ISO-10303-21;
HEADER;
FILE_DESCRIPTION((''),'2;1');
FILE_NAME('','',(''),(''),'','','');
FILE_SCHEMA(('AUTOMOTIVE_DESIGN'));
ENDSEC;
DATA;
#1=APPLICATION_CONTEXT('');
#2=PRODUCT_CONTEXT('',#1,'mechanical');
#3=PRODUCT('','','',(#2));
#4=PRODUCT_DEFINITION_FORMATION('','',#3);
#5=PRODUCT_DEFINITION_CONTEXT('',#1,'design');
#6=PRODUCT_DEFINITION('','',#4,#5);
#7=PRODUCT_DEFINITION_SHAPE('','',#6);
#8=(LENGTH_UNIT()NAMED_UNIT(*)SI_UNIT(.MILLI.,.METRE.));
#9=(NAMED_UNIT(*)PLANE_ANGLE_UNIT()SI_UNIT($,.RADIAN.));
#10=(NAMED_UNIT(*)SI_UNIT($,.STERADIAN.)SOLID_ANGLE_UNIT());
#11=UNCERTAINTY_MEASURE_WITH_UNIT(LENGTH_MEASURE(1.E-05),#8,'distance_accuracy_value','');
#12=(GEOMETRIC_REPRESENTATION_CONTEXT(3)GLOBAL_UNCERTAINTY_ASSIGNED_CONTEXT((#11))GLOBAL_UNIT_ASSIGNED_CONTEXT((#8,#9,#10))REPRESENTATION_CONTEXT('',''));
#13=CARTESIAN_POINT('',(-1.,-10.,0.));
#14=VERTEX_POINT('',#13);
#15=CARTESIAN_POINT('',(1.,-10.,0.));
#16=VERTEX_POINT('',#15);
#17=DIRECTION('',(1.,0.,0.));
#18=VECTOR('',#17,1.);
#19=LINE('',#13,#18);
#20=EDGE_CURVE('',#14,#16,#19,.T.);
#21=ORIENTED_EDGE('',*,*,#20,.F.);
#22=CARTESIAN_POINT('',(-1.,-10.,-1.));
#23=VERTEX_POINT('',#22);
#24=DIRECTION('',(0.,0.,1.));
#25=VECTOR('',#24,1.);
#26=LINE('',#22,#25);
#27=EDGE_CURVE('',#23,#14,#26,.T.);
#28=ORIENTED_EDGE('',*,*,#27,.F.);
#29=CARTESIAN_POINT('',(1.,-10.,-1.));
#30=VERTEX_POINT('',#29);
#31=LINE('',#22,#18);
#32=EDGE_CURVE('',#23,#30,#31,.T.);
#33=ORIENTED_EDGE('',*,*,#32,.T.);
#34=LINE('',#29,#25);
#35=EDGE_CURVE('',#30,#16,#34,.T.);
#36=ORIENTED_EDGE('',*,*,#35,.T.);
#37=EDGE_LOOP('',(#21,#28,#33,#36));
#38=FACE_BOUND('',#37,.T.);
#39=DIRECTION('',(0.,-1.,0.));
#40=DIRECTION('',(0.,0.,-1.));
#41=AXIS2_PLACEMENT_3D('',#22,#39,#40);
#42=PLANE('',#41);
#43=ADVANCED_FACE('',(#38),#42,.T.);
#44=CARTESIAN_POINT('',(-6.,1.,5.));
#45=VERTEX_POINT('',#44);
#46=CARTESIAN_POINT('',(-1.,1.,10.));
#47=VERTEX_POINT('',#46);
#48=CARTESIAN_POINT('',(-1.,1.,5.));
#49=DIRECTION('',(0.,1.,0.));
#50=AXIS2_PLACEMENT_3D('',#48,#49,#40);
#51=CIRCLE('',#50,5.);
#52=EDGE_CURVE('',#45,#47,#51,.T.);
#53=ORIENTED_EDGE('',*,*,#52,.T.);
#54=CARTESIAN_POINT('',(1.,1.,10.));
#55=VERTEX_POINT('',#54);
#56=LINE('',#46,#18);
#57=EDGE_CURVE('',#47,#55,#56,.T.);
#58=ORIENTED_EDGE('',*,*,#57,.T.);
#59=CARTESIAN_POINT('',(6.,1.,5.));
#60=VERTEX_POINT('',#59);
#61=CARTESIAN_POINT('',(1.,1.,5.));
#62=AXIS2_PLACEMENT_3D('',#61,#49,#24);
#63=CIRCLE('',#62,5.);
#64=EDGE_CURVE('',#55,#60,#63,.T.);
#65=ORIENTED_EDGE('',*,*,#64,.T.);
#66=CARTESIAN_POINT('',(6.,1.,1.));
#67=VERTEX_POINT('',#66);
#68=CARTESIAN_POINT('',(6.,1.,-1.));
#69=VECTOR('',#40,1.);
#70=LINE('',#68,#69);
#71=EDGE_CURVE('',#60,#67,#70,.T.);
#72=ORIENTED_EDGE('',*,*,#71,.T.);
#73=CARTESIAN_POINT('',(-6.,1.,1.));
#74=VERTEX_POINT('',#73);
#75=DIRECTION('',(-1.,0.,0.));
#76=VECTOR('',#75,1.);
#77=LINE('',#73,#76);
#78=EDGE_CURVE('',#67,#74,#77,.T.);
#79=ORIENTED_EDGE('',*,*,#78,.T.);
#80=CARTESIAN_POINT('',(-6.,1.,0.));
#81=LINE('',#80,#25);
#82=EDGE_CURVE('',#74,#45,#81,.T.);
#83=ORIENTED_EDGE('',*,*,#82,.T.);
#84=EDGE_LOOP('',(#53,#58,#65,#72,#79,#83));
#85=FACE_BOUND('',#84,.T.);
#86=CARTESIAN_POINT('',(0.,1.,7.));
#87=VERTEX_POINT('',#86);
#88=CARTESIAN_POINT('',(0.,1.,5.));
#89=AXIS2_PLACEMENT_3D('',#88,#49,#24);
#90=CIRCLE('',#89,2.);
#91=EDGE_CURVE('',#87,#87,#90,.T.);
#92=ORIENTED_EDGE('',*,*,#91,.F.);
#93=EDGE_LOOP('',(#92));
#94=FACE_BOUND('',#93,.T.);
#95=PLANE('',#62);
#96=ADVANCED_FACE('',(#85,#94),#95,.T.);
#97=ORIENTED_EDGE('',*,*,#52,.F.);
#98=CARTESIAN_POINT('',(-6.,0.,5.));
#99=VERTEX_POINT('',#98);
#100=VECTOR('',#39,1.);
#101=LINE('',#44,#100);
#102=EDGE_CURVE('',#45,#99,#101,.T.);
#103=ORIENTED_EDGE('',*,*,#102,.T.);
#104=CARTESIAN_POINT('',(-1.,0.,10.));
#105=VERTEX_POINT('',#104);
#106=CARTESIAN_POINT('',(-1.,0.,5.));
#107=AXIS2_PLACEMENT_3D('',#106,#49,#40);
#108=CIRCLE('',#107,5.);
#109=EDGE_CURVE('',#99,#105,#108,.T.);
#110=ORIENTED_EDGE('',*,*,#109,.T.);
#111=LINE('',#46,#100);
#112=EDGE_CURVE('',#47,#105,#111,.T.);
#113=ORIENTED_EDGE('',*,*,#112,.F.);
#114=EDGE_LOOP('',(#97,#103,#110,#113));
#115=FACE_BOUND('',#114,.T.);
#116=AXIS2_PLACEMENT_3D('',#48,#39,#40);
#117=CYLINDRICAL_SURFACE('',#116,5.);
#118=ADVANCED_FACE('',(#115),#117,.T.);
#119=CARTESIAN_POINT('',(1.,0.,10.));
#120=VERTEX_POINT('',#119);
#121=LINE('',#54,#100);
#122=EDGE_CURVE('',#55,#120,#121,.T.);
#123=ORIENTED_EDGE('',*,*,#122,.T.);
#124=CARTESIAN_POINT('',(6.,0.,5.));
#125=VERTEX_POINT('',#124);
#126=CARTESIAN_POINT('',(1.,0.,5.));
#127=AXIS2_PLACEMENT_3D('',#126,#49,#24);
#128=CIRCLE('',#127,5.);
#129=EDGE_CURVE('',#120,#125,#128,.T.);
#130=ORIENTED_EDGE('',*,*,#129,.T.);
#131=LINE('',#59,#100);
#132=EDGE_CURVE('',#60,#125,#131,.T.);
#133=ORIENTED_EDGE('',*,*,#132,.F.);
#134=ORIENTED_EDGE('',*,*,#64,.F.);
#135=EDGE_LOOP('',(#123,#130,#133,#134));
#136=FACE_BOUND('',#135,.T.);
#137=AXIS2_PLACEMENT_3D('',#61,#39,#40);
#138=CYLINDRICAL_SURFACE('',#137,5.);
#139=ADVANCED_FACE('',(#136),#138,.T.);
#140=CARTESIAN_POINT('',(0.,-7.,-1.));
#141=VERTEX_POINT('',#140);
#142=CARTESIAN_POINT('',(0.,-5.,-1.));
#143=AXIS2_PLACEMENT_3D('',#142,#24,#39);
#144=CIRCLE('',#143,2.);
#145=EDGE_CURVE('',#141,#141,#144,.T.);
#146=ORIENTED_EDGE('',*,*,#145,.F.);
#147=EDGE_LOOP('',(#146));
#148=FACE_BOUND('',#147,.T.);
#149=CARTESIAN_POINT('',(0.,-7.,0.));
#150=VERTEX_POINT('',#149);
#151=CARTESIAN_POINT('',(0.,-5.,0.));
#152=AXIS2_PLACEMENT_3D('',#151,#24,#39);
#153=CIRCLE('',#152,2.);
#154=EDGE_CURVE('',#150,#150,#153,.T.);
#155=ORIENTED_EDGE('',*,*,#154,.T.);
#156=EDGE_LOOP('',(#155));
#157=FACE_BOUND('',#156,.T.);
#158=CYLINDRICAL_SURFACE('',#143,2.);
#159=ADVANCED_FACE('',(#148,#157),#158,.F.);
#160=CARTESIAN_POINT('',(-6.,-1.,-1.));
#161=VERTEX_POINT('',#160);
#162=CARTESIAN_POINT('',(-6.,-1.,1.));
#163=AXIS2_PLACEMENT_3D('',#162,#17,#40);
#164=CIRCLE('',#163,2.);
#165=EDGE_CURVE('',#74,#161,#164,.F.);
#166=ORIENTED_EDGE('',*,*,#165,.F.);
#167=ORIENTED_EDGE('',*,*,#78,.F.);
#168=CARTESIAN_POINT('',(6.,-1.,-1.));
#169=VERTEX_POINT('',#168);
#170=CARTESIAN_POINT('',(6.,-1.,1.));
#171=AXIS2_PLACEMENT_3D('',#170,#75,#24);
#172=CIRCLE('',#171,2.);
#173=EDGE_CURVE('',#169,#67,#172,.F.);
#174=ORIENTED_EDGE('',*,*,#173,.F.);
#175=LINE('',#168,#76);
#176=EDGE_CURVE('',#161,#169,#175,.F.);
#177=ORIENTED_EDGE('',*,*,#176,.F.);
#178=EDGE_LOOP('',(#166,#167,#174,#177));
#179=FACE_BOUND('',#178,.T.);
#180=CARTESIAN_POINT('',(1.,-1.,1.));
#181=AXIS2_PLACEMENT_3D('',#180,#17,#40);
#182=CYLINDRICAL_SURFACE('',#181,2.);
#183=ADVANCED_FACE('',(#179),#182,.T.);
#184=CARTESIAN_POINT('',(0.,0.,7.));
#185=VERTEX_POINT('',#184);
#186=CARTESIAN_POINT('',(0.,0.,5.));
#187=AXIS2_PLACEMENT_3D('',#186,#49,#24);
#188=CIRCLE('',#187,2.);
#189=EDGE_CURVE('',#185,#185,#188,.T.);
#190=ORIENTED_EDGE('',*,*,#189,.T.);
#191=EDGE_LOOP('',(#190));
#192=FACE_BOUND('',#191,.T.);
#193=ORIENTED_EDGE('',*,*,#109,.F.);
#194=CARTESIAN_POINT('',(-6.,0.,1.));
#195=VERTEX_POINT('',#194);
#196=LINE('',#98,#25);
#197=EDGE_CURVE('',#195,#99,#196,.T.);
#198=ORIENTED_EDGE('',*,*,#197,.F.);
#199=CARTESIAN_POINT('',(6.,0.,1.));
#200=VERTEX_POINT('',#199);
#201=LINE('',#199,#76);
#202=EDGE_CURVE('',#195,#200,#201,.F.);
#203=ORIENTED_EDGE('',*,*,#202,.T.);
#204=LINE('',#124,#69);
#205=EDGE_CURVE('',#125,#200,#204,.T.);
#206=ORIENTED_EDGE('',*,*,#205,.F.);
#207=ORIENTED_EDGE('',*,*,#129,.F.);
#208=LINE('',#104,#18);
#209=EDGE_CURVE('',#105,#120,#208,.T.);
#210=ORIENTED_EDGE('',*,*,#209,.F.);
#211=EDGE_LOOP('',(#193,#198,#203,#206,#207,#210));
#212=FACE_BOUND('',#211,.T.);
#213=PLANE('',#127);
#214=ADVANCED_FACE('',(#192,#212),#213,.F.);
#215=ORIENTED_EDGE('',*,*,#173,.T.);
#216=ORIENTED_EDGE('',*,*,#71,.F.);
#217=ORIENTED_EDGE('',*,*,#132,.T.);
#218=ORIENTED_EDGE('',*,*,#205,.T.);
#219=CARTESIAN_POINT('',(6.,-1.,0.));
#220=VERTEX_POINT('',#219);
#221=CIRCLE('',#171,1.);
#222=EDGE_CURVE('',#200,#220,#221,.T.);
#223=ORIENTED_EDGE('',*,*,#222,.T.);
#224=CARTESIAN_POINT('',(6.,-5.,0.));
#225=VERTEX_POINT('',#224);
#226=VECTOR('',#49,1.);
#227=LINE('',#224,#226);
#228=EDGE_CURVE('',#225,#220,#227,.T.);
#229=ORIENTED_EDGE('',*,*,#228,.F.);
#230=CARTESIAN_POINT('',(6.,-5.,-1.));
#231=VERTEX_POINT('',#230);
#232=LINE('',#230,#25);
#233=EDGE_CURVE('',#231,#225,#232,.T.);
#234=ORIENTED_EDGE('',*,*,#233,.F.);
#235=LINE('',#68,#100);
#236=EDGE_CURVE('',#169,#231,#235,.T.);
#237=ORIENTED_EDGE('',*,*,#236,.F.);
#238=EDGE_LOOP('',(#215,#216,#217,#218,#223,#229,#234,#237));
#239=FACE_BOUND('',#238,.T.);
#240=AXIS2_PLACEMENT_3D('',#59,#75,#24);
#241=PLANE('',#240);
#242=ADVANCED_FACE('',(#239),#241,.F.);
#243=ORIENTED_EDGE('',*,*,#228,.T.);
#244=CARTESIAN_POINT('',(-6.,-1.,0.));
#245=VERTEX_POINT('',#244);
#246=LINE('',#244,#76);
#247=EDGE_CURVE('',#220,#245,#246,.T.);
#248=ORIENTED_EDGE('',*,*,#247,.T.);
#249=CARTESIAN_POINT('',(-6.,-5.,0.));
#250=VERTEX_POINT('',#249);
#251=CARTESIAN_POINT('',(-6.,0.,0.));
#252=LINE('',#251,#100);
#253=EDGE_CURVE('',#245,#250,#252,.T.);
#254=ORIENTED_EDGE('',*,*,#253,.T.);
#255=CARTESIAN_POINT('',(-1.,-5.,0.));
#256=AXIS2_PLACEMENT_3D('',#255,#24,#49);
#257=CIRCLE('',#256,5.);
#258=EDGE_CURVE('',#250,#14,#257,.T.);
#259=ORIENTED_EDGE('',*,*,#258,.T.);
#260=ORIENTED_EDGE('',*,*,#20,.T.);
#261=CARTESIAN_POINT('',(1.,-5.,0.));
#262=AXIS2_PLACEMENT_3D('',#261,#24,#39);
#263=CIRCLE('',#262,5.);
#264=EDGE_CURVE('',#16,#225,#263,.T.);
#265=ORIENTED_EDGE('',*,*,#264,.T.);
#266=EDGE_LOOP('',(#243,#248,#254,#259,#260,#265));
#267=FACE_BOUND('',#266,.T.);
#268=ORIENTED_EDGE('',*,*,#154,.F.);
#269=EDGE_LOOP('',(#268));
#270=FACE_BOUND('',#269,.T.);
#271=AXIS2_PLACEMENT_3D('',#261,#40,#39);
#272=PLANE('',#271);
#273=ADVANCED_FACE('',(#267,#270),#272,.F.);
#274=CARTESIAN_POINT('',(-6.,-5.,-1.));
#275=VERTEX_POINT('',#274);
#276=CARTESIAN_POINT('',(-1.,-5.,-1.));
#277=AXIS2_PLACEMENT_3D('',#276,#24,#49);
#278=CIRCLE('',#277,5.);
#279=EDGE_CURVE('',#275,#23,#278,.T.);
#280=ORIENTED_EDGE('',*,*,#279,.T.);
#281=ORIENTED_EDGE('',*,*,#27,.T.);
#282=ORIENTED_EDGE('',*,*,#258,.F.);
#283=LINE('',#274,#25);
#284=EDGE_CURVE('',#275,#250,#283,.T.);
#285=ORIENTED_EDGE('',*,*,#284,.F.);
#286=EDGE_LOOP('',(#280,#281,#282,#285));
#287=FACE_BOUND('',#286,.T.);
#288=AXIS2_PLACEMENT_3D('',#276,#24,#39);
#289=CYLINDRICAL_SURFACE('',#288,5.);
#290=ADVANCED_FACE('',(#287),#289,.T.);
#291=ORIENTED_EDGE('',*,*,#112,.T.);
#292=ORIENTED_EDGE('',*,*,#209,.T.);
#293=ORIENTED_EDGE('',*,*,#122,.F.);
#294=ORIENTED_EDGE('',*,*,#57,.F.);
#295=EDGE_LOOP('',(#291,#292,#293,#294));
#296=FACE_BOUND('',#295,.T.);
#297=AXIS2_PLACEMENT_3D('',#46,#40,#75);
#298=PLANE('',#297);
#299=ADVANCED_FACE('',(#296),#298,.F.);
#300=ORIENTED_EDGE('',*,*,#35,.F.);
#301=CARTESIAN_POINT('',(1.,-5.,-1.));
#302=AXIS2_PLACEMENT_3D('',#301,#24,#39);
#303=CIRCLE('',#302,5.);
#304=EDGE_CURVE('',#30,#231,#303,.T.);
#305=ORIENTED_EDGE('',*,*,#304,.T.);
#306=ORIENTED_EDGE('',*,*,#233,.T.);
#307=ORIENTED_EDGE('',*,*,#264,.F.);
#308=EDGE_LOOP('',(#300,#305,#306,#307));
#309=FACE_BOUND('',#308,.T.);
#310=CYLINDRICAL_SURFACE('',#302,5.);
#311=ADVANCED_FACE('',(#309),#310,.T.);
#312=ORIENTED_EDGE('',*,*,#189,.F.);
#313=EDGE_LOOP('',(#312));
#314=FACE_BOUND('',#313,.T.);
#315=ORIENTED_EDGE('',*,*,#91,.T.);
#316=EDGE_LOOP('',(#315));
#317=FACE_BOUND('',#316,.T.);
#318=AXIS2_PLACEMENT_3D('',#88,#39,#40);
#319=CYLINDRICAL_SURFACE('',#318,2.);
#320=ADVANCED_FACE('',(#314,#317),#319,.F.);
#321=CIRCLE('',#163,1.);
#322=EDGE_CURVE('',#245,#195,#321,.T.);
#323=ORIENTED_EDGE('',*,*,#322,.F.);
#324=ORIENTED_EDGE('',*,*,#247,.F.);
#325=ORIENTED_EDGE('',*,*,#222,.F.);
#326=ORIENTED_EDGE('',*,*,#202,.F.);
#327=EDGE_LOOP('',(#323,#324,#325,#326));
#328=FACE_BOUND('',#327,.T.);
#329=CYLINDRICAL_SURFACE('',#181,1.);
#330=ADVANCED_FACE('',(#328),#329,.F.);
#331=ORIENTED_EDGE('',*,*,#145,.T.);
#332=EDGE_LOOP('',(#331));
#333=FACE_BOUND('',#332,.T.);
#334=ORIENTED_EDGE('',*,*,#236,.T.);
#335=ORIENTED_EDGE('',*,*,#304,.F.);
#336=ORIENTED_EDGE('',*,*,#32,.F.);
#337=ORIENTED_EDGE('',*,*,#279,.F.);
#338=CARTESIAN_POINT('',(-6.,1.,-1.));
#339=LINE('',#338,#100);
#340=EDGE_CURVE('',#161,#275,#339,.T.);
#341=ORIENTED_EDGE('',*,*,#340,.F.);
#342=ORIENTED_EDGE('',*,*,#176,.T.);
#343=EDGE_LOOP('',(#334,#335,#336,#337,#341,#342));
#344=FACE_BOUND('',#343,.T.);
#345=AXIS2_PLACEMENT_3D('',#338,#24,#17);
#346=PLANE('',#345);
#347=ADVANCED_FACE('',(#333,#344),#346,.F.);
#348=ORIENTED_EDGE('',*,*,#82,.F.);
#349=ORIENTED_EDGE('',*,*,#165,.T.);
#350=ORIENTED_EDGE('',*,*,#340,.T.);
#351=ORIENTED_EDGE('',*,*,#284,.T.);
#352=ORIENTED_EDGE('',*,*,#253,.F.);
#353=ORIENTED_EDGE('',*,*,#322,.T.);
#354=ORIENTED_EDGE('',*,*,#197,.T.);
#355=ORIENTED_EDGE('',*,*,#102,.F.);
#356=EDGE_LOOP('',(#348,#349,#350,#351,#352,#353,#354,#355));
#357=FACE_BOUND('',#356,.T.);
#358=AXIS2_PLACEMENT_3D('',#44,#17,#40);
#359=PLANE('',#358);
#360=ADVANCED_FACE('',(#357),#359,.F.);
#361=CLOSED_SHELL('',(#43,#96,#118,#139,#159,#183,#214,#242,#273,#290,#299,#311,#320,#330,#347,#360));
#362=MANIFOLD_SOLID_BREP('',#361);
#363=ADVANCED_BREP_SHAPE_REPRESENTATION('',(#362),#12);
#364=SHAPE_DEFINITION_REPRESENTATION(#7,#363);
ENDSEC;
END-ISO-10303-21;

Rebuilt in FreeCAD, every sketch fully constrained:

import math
import FreeCAD as App
import Part
import Sketcher

V = App.Vector


def edges_at(feature, points):
    """Names of the edges that pass closest to the given points."""
    edges = feature.Shape.Edges
    near = lambda p: min(range(len(edges)), key=lambda i: edges[i].distToShape(Part.Vertex(*p))[0])
    return sorted({f"Edge{near(p) + 1}" for p in points})

doc = App.newDocument("Part")
body = doc.addObject("PartDesign::Body", "Body")

sketch1 = body.newObject("Sketcher::SketchObject", "Sketch")
sketch1.AttachmentSupport = (doc.getObject("XZ_Plane"), [""])
sketch1.MapMode = "FlatFace"
sketch1.addGeometry([
    Part.LineSegment(V(6, -1, 0), V(-6, -1, 0)),
    Part.LineSegment(V(-6, -1, 0), V(-6, 5, 0)),
    Part.ArcOfCircle(Part.Circle(V(-1, 5, 0), V(0, 0, 1), 5), math.radians(90), math.radians(180)),
    Part.LineSegment(V(-1, 10, 0), V(1, 10, 0)),
    Part.ArcOfCircle(Part.Circle(V(1, 5, 0), V(0, 0, 1), 5), math.radians(0), math.radians(90)),
    Part.LineSegment(V(6, 5, 0), V(6, -1, 0)),
    Part.Circle(V(0, 5, 0), V(0, 0, 1), 2),
], False)
sketch1.addConstraint([
    Sketcher.Constraint("Coincident", 0, 2, 1, 1),
    Sketcher.Constraint("Tangent", 1, 2, 2, 2),
    Sketcher.Constraint("Tangent", 2, 1, 3, 1),
    Sketcher.Constraint("Tangent", 3, 2, 4, 2),
    Sketcher.Constraint("Tangent", 4, 1, 5, 1),
    Sketcher.Constraint("Coincident", 5, 2, 0, 1),
    Sketcher.Constraint("Horizontal", 0),
    Sketcher.Constraint("Vertical", 1),
    Sketcher.Constraint("Horizontal", 3),
    Sketcher.Constraint("Vertical", 5),
    Sketcher.Constraint("Equal", 2, 4),
    Sketcher.Constraint("PointOnObject", 6, 3, -2),
    Sketcher.Constraint("Horizontal", 4, 3, 6, 3),
    Sketcher.Constraint("Diameter", 6, 4.0),
    Sketcher.Constraint("Radius", 2, 5.0),
    Sketcher.Constraint("DistanceX", 0, 2, 0, 1, 12.0),
    Sketcher.Constraint("DistanceY", 1, 1, 1, 2, 6.0),
    Sketcher.Constraint("DistanceX", 2, 3, -1, 1, 1.0),
    Sketcher.Constraint("DistanceY", -1, 1, 2, 3, 5.0),
])
pad1 = body.newObject("PartDesign::Pad", "Pad")
pad1.Profile = sketch1
pad1.Length = 1
pad1.Reversed = True
doc.recompute()

datumplane = body.newObject("PartDesign::Plane", "DatumPlane")
datumplane.Placement = App.Placement(V(0, 0, 0), App.Rotation(V(0, -0.707106781, 0.707106781), V(-1, 0, 0), V(0, -0.707106781, -0.707106781), "ZXY"))
mirrored = body.newObject("PartDesign::Mirrored", "Mirrored")
mirrored.Originals = [pad1]
mirrored.MirrorPlane = (datumplane, [""])
body.Tip = mirrored
doc.recompute()

fillet = body.newObject("PartDesign::Fillet", "Fillet")
fillet.Base = (mirrored, edges_at(mirrored, [(0, 0, 0)]))
fillet.Radius = 1
doc.recompute()

fillet2 = body.newObject("PartDesign::Fillet", "Fillet001")
fillet2.Base = (fillet, edges_at(fillet, [(0, 1, -1)]))
fillet2.Radius = 2

doc.recompute()
